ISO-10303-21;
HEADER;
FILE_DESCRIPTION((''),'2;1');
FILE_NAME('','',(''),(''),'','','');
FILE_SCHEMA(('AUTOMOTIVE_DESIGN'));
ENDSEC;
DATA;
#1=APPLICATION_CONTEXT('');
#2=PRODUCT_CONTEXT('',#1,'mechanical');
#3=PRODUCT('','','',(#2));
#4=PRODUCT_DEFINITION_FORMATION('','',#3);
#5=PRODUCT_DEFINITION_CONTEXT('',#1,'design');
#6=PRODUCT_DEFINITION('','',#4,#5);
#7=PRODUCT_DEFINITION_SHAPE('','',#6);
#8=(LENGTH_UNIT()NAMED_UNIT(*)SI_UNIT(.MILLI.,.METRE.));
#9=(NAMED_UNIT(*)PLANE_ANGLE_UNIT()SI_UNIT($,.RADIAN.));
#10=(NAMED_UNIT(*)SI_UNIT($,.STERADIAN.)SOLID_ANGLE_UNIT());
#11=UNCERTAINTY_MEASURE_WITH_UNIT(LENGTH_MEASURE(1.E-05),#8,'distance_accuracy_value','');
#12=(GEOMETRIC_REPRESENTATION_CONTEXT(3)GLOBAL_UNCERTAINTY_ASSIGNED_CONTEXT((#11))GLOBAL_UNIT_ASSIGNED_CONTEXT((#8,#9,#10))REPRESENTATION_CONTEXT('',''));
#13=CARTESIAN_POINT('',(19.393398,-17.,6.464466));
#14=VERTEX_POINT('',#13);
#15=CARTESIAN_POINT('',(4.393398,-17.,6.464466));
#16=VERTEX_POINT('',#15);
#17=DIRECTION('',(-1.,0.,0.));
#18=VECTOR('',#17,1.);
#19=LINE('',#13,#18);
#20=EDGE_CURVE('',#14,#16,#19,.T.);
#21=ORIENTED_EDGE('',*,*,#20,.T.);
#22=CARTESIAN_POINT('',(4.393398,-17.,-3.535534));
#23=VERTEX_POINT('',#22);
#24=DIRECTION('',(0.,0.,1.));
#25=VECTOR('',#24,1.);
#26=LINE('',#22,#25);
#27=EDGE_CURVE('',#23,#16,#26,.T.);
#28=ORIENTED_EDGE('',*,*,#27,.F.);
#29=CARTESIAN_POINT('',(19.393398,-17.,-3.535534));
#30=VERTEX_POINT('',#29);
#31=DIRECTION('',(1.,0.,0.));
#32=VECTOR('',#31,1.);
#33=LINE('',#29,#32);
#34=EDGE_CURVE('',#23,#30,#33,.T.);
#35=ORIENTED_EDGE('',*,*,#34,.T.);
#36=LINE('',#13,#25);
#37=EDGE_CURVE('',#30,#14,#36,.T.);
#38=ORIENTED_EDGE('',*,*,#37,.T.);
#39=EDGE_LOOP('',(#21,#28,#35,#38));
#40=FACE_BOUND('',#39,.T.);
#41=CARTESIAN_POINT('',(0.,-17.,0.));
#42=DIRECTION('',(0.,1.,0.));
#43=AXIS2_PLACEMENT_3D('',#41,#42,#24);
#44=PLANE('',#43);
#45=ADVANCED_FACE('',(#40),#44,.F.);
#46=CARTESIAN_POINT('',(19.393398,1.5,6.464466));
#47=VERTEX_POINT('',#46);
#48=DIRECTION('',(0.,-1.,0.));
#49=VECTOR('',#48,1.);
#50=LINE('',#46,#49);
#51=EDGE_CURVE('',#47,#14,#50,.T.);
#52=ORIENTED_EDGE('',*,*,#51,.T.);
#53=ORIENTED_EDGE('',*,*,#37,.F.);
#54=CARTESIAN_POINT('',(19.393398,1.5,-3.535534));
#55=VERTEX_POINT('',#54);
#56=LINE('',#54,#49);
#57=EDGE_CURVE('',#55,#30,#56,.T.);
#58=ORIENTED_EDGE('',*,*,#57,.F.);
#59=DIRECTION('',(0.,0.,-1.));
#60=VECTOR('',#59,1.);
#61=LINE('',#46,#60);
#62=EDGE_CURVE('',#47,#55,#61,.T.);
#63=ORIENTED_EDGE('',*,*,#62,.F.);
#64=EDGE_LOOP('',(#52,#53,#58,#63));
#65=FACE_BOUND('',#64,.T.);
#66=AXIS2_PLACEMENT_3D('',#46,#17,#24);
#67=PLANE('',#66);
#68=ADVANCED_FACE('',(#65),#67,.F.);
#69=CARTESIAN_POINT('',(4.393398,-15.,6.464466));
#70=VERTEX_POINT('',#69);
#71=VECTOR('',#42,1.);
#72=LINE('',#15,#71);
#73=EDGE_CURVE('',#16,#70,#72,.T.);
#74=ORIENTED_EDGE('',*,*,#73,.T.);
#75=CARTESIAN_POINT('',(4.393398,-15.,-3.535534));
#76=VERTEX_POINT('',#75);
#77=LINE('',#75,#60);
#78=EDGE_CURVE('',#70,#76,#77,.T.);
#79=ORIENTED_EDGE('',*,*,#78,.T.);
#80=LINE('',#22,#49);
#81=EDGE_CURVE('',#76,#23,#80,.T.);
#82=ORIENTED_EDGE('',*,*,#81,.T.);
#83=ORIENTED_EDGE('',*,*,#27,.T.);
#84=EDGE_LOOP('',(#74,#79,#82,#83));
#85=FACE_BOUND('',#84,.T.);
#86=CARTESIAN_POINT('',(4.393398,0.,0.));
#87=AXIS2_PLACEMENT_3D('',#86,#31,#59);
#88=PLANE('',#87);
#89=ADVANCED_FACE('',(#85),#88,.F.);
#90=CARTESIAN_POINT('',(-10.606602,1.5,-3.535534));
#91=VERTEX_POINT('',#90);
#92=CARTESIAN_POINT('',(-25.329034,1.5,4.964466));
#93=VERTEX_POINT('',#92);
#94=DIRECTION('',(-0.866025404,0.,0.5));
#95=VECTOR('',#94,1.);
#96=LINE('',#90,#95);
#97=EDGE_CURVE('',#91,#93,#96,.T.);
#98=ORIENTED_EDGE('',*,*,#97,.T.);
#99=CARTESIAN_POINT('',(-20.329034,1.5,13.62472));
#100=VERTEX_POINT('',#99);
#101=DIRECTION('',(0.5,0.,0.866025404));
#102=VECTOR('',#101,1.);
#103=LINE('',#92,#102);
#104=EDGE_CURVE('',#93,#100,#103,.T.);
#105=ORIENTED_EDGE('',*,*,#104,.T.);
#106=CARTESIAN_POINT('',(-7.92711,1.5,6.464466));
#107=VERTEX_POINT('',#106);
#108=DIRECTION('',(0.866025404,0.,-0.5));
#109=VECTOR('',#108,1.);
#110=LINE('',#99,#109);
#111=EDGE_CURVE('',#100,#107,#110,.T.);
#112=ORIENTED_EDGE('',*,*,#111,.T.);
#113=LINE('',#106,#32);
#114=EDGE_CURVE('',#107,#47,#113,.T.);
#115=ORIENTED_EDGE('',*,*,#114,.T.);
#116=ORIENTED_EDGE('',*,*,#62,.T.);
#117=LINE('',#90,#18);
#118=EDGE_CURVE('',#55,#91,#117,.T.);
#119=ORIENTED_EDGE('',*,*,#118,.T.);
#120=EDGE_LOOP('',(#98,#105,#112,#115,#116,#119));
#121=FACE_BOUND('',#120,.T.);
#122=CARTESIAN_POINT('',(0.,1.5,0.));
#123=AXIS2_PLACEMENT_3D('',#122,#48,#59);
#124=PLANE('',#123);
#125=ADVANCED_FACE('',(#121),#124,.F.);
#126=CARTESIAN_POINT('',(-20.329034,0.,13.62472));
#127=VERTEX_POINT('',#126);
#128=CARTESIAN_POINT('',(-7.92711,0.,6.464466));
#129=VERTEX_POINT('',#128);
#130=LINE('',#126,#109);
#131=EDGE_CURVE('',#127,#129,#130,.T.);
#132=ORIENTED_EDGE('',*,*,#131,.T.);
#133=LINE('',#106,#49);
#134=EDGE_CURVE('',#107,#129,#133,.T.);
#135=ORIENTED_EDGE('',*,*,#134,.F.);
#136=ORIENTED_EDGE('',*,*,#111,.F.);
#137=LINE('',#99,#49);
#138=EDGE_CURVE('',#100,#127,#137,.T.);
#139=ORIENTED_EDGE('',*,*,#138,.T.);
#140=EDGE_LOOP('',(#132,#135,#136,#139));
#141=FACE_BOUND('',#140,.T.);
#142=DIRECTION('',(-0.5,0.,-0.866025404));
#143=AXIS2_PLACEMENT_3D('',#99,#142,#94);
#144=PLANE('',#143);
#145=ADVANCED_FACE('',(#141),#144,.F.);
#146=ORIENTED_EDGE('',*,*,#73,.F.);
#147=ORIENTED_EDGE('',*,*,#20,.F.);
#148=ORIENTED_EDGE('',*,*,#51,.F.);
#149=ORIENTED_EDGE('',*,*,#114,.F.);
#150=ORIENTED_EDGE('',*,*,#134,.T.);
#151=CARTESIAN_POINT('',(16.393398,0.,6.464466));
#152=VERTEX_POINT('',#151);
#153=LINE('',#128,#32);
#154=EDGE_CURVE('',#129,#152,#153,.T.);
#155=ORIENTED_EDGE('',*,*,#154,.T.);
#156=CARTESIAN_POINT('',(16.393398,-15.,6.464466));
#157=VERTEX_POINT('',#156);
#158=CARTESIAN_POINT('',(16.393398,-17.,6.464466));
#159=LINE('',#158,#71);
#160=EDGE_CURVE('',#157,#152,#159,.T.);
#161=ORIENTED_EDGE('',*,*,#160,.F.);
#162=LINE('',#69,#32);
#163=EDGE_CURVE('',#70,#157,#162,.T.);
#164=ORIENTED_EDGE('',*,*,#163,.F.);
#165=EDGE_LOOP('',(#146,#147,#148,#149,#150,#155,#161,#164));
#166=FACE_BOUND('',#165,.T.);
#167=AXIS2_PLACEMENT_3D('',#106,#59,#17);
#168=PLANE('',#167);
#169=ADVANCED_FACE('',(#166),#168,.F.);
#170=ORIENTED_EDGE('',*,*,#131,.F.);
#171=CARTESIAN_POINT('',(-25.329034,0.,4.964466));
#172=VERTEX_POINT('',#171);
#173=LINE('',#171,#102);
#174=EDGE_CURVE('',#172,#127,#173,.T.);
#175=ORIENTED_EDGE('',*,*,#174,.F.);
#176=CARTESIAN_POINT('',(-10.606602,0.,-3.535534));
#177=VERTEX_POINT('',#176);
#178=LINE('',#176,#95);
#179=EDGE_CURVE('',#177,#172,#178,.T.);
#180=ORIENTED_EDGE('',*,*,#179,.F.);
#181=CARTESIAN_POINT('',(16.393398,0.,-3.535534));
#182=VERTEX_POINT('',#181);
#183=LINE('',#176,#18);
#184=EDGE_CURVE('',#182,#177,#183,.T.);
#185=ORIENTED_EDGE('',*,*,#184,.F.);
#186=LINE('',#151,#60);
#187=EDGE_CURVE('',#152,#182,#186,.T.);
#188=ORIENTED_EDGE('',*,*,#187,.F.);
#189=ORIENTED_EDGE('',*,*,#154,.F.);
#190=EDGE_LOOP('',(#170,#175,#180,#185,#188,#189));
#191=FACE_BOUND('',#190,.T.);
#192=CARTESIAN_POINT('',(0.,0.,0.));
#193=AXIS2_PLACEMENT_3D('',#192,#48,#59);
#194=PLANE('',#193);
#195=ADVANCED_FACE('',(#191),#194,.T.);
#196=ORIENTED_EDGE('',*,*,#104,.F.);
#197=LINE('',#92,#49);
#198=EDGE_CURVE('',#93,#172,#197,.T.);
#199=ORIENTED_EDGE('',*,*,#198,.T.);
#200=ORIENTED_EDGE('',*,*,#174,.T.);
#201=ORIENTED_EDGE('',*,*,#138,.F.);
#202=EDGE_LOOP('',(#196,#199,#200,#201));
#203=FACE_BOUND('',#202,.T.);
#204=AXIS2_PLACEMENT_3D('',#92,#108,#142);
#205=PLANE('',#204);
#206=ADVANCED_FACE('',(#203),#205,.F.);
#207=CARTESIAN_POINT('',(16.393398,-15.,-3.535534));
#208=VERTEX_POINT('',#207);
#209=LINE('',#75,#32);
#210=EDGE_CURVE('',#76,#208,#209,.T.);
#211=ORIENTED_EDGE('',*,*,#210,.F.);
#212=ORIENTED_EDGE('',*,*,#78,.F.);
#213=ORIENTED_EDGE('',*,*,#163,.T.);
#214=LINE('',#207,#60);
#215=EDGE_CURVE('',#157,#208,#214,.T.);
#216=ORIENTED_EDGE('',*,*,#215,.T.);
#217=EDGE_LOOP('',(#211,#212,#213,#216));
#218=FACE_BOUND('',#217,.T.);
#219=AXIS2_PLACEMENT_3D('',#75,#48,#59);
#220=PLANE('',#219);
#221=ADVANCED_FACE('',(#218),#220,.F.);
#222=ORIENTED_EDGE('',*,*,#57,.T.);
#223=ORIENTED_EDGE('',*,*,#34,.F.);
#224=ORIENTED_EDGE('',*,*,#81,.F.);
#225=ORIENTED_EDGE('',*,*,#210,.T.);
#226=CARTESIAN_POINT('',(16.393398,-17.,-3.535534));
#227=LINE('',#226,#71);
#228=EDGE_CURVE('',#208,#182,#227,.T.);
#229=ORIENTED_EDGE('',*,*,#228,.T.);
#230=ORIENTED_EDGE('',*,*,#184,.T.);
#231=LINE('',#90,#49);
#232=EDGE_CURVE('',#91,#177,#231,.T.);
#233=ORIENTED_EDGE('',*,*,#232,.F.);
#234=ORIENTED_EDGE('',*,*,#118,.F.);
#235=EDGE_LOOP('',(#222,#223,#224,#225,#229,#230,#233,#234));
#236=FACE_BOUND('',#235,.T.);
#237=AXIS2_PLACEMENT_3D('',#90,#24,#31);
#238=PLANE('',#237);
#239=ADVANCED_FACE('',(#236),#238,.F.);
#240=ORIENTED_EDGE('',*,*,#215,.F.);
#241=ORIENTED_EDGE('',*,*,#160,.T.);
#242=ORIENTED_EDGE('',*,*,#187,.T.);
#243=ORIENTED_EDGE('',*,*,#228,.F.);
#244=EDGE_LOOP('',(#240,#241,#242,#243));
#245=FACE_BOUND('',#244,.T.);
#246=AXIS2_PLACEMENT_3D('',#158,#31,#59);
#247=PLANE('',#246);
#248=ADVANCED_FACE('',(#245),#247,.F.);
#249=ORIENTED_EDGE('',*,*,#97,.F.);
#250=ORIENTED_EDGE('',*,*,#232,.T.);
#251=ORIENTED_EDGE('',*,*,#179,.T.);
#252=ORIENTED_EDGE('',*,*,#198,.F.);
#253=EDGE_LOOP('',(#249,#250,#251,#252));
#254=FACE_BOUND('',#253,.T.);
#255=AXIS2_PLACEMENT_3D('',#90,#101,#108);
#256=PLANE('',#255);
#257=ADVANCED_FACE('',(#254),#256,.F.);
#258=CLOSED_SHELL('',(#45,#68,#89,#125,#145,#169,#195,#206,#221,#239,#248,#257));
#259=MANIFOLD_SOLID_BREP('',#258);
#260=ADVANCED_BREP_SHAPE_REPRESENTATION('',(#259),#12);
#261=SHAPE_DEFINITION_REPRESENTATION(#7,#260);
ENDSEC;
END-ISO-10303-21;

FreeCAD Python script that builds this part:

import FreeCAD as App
import Part
import Sketcher
Q = App.Units.Quantity


def add_polygon(sketch, points):
    """Adds a closed chain of lines whose ends are joined by coincident constraints."""
    first, n = sketch.GeometryCount, len(points)
    for a, b in zip(points, points[1:] + points[:1]):
        sketch.addGeometry(Part.LineSegment(App.Vector(*a, 0), App.Vector(*b, 0)), False)
    for i in range(n):
        sketch.addConstraint(Sketcher.Constraint("Coincident", first + i, 2, first + (i + 1) % n, 1))

doc = App.newDocument("Part")
body = doc.addObject("PartDesign::Body", "Body")

sketch1 = body.newObject("Sketcher::SketchObject", "Sketch")
sketch1.AttachmentSupport = (doc.getObject("XZ_Plane"), [""])
sketch1.MapMode = "FlatFace"
add_polygon(sketch1, [(-10.606602, -3.535534), (-25.329034, 4.964466), (-20.329034, 13.62472), (-7.92711, 6.464466), (19.393398, 6.464466), (19.393398, -3.535534)])
sketch1.addConstraint([
    Sketcher.Constraint("Horizontal", 3),
    Sketcher.Constraint("Vertical", 4),
    Sketcher.Constraint("Horizontal", 5),
    Sketcher.Constraint("Perpendicular", 0, 1),
    Sketcher.Constraint("Perpendicular", 1, 2),
    Sketcher.Constraint("DistanceX", 5, 2, 5, 1, 30.0),
    Sketcher.Constraint("DistanceY", 4, 2, 4, 1, 10.0),
    Sketcher.Constraint("Angle", 0, Q("150 deg")),
    Sketcher.Constraint("Distance", 0, 17.0),
    Sketcher.Constraint("Distance", 1, 10.0),
    Sketcher.Constraint("DistanceX", -1, 1, 3, 2, 19.393398),
    Sketcher.Constraint("DistanceY", -1, 1, 1, 2, 13.62472),
])
pad1 = body.newObject("PartDesign::Pad", "Pad")
pad1.Profile = sketch1
pad1.Length = 1.5
pad1.Reversed = True

sketch2 = body.newObject("Sketcher::SketchObject", "Sketch001")
sketch2.AttachmentSupport = (doc.getObject("XZ_Plane"), [""])
sketch2.MapMode = "FlatFace"
add_polygon(sketch2, [(16.393398, 6.464466), (16.393398, -3.535534), (19.393398, -3.535534), (19.393398, 6.464466)])
sketch2.addConstraint([
    Sketcher.Constraint("Vertical", 0),
    Sketcher.Constraint("Horizontal", 1),
    Sketcher.Constraint("Vertical", 2),
    Sketcher.Constraint("Horizontal", 3),
    Sketcher.Constraint("DistanceX", 1, 1, 1, 2, 3.0),
    Sketcher.Constraint("DistanceY", 0, 2, 0, 1, 10.0),
    Sketcher.Constraint("DistanceX", -1, 1, 0, 2, 16.393398),
    Sketcher.Constraint("DistanceY", 0, 2, -1, 1, 3.535534),
])
pad2 = body.newObject("PartDesign::Pad", "Pad001")
pad2.Profile = sketch2
pad2.Length = 17

sketch3 = body.newObject("Sketcher::SketchObject", "Sketch002")
sketch3.AttachmentSupport = (doc.getObject("YZ_Plane"), [""])
sketch3.MapMode = "FlatFace"
sketch3.AttachmentOffset = App.Placement(App.Vector(0, 0, 16.393398), App.Rotation())
add_polygon(sketch3, [(-15, -3.535534), (-17, -3.535534), (-17, 6.464466), (-15, 6.464466)])
sketch3.addConstraint([
    Sketcher.Constraint("Horizontal", 0),
    Sketcher.Constraint("Vertical", 1),
    Sketcher.Constraint("Horizontal", 2),
    Sketcher.Constraint("Vertical", 3),
    Sketcher.Constraint("DistanceX", 0, 2, 0, 1, 2.0),
    Sketcher.Constraint("DistanceY", 1, 1, 1, 2, 10.0),
    Sketcher.Constraint("DistanceX", 0, 2, -1, 1, 17.0),
    Sketcher.Constraint("DistanceY", 0, 2, -1, 1, 3.535534),
])
pad3 = body.newObject("PartDesign::Pad", "Pad002")
pad3.Profile = sketch3
pad3.Length = 12
pad3.Reversed = True

doc.recompute()
